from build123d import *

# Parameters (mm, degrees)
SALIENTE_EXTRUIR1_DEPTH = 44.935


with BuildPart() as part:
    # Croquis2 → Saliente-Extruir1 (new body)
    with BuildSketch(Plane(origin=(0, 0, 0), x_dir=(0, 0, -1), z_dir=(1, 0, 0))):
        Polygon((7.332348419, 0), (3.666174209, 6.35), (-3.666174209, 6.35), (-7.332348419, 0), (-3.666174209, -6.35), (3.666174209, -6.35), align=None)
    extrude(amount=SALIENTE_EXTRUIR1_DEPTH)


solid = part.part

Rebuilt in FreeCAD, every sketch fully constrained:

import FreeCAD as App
import Part
import Sketcher

V = App.Vector
Q = App.Units.Quantity

doc = App.newDocument("Part")
body = doc.addObject("PartDesign::Body", "Body")

# Sketch on YZ plane
sketch1 = doc.addObject("Sketcher::SketchObject", "Sketch")
body.addObject(sketch1)
sketch1.AttachmentSupport = (doc.YZ_Plane, [""])
sketch1.MapMode = "FlatFace"
sketch1.addGeometry([
    Part.LineSegment(V(0, -7, 0), V(6, -4, 0)),  # 0
    Part.LineSegment(V(6, -4, 0), V(6, 4, 0)),  # 1
    Part.LineSegment(V(6, 4, 0), V(0, 7, 0)),  # 2
    Part.LineSegment(V(0, 7, 0), V(-6, 4, 0)),  # 3
    Part.LineSegment(V(-6, 4, 0), V(-6, -4, 0)),  # 4
    Part.LineSegment(V(-6, -4, 0), V(0, -7, 0)),  # 5
], False)
sketch1.addConstraint([
    Sketcher.Constraint("Coincident", 0, 2, 1, 1),
    Sketcher.Constraint("Coincident", 1, 2, 2, 1),
    Sketcher.Constraint("Coincident", 2, 2, 3, 1),
    Sketcher.Constraint("Coincident", 3, 2, 4, 1),
    Sketcher.Constraint("Coincident", 4, 2, 5, 1),
    Sketcher.Constraint("Coincident", 5, 2, 0, 1),
    Sketcher.Constraint("Vertical", 1),
    Sketcher.Constraint("Vertical", 4),
    Sketcher.Constraint("Symmetric", 0, 2, 3, 2, -1, 1),
    Sketcher.Constraint("Symmetric", 2, 2, 5, 2, -1, 1),
    Sketcher.Constraint("PointOnObject", 2, 2, -2),
    Sketcher.Constraint("Parallel", 2, 5),
    Sketcher.Constraint("Horizontal", 1, 2, 3, 2),
    Sketcher.Constraint("Angle", 0, Q("30 deg")),
    Sketcher.Constraint("DistanceX", 3, 2, 1, 2, 12.7),
    Sketcher.Constraint("DistanceY", 1, 1, 1, 2, 7.332348),
])
pad1 = doc.addObject("PartDesign::Pad", "Pad")
body.addObject(pad1)
pad1.Profile = sketch1
pad1.Length = 44.935

doc.recompute()
